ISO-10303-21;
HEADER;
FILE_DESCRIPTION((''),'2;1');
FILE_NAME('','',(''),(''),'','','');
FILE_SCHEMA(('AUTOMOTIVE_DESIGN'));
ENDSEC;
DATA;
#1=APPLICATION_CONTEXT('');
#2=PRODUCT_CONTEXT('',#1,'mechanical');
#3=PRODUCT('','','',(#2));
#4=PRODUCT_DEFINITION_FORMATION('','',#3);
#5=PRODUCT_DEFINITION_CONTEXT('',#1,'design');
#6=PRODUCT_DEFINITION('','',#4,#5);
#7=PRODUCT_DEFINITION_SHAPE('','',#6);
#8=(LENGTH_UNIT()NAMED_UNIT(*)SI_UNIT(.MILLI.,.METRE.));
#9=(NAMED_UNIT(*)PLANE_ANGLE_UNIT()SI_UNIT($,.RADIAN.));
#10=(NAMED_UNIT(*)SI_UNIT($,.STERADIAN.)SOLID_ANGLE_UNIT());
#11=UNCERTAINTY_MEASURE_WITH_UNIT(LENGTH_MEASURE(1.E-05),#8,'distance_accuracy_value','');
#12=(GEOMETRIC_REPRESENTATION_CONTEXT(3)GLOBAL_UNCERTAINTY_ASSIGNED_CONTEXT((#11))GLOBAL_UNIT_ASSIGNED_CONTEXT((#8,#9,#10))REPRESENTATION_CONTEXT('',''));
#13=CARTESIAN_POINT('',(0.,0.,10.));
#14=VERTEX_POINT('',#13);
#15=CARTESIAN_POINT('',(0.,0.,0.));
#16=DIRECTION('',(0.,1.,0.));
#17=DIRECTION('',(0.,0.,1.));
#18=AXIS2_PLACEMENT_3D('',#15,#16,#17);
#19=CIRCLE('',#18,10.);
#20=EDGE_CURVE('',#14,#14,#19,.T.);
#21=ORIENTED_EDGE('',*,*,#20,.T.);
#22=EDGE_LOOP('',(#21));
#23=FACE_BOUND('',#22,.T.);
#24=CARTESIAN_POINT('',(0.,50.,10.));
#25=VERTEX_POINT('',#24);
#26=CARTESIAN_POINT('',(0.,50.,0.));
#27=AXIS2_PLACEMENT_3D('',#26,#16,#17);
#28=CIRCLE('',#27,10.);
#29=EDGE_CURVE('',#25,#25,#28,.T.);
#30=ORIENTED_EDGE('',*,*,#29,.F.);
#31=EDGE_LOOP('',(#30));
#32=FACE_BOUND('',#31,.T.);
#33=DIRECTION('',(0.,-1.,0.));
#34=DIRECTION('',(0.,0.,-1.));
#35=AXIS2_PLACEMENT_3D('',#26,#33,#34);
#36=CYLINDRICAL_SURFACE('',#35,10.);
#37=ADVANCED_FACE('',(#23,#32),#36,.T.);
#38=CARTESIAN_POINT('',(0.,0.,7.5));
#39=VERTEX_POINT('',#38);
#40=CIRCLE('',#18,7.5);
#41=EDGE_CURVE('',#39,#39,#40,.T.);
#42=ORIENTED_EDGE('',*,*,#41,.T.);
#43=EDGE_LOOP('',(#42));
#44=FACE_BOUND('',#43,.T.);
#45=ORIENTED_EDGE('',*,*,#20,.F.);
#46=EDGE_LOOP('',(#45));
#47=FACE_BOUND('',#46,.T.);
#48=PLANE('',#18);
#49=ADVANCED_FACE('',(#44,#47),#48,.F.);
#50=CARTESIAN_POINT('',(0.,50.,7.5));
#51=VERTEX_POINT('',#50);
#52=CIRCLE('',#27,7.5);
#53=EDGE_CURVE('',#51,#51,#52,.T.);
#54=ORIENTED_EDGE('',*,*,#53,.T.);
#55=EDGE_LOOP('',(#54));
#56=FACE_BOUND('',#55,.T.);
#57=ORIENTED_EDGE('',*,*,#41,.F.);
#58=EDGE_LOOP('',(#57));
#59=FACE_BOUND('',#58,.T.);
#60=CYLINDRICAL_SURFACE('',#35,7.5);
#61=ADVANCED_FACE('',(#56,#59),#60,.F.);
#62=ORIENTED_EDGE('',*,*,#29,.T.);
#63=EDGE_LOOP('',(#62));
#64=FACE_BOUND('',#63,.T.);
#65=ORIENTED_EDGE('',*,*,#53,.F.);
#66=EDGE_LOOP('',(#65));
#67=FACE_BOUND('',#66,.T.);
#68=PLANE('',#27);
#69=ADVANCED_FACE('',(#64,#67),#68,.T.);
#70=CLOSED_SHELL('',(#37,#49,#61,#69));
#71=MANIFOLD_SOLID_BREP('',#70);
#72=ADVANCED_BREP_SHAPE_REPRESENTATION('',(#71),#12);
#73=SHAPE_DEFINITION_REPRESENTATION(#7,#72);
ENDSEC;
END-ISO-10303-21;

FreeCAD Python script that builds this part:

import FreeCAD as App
import Part
import Sketcher

V = App.Vector

doc = App.newDocument("Part")
body = doc.addObject("PartDesign::Body", "Body")

sketch1 = doc.addObject("Sketcher::SketchObject", "Sketch")
body.addObject(sketch1)
sketch1.AttachmentSupport = (doc.XZ_Plane, [""])
sketch1.MapMode = "FlatFace"
sketch1.addGeometry(Part.Circle(V(0, 0, 0), V(0, 0, 1), 10), False)
sketch1.addGeometry(Part.Circle(V(0, 0, 0), V(0, 0, 1), 8), False)
sketch1.addConstraint(Sketcher.Constraint("Coincident", 0, 3, -1, 1))
sketch1.addConstraint(Sketcher.Constraint("Coincident", 1, 3, -1, 1))
sketch1.addConstraint(Sketcher.Constraint("Diameter", 0, 20.0))
sketch1.addConstraint(Sketcher.Constraint("Diameter", 1, 15.0))
pad1 = doc.addObject("PartDesign::Pad", "Pad")
body.addObject(pad1)
pad1.Profile = sketch1
pad1.Length = 50
pad1.Reversed = True

doc.recompute()
